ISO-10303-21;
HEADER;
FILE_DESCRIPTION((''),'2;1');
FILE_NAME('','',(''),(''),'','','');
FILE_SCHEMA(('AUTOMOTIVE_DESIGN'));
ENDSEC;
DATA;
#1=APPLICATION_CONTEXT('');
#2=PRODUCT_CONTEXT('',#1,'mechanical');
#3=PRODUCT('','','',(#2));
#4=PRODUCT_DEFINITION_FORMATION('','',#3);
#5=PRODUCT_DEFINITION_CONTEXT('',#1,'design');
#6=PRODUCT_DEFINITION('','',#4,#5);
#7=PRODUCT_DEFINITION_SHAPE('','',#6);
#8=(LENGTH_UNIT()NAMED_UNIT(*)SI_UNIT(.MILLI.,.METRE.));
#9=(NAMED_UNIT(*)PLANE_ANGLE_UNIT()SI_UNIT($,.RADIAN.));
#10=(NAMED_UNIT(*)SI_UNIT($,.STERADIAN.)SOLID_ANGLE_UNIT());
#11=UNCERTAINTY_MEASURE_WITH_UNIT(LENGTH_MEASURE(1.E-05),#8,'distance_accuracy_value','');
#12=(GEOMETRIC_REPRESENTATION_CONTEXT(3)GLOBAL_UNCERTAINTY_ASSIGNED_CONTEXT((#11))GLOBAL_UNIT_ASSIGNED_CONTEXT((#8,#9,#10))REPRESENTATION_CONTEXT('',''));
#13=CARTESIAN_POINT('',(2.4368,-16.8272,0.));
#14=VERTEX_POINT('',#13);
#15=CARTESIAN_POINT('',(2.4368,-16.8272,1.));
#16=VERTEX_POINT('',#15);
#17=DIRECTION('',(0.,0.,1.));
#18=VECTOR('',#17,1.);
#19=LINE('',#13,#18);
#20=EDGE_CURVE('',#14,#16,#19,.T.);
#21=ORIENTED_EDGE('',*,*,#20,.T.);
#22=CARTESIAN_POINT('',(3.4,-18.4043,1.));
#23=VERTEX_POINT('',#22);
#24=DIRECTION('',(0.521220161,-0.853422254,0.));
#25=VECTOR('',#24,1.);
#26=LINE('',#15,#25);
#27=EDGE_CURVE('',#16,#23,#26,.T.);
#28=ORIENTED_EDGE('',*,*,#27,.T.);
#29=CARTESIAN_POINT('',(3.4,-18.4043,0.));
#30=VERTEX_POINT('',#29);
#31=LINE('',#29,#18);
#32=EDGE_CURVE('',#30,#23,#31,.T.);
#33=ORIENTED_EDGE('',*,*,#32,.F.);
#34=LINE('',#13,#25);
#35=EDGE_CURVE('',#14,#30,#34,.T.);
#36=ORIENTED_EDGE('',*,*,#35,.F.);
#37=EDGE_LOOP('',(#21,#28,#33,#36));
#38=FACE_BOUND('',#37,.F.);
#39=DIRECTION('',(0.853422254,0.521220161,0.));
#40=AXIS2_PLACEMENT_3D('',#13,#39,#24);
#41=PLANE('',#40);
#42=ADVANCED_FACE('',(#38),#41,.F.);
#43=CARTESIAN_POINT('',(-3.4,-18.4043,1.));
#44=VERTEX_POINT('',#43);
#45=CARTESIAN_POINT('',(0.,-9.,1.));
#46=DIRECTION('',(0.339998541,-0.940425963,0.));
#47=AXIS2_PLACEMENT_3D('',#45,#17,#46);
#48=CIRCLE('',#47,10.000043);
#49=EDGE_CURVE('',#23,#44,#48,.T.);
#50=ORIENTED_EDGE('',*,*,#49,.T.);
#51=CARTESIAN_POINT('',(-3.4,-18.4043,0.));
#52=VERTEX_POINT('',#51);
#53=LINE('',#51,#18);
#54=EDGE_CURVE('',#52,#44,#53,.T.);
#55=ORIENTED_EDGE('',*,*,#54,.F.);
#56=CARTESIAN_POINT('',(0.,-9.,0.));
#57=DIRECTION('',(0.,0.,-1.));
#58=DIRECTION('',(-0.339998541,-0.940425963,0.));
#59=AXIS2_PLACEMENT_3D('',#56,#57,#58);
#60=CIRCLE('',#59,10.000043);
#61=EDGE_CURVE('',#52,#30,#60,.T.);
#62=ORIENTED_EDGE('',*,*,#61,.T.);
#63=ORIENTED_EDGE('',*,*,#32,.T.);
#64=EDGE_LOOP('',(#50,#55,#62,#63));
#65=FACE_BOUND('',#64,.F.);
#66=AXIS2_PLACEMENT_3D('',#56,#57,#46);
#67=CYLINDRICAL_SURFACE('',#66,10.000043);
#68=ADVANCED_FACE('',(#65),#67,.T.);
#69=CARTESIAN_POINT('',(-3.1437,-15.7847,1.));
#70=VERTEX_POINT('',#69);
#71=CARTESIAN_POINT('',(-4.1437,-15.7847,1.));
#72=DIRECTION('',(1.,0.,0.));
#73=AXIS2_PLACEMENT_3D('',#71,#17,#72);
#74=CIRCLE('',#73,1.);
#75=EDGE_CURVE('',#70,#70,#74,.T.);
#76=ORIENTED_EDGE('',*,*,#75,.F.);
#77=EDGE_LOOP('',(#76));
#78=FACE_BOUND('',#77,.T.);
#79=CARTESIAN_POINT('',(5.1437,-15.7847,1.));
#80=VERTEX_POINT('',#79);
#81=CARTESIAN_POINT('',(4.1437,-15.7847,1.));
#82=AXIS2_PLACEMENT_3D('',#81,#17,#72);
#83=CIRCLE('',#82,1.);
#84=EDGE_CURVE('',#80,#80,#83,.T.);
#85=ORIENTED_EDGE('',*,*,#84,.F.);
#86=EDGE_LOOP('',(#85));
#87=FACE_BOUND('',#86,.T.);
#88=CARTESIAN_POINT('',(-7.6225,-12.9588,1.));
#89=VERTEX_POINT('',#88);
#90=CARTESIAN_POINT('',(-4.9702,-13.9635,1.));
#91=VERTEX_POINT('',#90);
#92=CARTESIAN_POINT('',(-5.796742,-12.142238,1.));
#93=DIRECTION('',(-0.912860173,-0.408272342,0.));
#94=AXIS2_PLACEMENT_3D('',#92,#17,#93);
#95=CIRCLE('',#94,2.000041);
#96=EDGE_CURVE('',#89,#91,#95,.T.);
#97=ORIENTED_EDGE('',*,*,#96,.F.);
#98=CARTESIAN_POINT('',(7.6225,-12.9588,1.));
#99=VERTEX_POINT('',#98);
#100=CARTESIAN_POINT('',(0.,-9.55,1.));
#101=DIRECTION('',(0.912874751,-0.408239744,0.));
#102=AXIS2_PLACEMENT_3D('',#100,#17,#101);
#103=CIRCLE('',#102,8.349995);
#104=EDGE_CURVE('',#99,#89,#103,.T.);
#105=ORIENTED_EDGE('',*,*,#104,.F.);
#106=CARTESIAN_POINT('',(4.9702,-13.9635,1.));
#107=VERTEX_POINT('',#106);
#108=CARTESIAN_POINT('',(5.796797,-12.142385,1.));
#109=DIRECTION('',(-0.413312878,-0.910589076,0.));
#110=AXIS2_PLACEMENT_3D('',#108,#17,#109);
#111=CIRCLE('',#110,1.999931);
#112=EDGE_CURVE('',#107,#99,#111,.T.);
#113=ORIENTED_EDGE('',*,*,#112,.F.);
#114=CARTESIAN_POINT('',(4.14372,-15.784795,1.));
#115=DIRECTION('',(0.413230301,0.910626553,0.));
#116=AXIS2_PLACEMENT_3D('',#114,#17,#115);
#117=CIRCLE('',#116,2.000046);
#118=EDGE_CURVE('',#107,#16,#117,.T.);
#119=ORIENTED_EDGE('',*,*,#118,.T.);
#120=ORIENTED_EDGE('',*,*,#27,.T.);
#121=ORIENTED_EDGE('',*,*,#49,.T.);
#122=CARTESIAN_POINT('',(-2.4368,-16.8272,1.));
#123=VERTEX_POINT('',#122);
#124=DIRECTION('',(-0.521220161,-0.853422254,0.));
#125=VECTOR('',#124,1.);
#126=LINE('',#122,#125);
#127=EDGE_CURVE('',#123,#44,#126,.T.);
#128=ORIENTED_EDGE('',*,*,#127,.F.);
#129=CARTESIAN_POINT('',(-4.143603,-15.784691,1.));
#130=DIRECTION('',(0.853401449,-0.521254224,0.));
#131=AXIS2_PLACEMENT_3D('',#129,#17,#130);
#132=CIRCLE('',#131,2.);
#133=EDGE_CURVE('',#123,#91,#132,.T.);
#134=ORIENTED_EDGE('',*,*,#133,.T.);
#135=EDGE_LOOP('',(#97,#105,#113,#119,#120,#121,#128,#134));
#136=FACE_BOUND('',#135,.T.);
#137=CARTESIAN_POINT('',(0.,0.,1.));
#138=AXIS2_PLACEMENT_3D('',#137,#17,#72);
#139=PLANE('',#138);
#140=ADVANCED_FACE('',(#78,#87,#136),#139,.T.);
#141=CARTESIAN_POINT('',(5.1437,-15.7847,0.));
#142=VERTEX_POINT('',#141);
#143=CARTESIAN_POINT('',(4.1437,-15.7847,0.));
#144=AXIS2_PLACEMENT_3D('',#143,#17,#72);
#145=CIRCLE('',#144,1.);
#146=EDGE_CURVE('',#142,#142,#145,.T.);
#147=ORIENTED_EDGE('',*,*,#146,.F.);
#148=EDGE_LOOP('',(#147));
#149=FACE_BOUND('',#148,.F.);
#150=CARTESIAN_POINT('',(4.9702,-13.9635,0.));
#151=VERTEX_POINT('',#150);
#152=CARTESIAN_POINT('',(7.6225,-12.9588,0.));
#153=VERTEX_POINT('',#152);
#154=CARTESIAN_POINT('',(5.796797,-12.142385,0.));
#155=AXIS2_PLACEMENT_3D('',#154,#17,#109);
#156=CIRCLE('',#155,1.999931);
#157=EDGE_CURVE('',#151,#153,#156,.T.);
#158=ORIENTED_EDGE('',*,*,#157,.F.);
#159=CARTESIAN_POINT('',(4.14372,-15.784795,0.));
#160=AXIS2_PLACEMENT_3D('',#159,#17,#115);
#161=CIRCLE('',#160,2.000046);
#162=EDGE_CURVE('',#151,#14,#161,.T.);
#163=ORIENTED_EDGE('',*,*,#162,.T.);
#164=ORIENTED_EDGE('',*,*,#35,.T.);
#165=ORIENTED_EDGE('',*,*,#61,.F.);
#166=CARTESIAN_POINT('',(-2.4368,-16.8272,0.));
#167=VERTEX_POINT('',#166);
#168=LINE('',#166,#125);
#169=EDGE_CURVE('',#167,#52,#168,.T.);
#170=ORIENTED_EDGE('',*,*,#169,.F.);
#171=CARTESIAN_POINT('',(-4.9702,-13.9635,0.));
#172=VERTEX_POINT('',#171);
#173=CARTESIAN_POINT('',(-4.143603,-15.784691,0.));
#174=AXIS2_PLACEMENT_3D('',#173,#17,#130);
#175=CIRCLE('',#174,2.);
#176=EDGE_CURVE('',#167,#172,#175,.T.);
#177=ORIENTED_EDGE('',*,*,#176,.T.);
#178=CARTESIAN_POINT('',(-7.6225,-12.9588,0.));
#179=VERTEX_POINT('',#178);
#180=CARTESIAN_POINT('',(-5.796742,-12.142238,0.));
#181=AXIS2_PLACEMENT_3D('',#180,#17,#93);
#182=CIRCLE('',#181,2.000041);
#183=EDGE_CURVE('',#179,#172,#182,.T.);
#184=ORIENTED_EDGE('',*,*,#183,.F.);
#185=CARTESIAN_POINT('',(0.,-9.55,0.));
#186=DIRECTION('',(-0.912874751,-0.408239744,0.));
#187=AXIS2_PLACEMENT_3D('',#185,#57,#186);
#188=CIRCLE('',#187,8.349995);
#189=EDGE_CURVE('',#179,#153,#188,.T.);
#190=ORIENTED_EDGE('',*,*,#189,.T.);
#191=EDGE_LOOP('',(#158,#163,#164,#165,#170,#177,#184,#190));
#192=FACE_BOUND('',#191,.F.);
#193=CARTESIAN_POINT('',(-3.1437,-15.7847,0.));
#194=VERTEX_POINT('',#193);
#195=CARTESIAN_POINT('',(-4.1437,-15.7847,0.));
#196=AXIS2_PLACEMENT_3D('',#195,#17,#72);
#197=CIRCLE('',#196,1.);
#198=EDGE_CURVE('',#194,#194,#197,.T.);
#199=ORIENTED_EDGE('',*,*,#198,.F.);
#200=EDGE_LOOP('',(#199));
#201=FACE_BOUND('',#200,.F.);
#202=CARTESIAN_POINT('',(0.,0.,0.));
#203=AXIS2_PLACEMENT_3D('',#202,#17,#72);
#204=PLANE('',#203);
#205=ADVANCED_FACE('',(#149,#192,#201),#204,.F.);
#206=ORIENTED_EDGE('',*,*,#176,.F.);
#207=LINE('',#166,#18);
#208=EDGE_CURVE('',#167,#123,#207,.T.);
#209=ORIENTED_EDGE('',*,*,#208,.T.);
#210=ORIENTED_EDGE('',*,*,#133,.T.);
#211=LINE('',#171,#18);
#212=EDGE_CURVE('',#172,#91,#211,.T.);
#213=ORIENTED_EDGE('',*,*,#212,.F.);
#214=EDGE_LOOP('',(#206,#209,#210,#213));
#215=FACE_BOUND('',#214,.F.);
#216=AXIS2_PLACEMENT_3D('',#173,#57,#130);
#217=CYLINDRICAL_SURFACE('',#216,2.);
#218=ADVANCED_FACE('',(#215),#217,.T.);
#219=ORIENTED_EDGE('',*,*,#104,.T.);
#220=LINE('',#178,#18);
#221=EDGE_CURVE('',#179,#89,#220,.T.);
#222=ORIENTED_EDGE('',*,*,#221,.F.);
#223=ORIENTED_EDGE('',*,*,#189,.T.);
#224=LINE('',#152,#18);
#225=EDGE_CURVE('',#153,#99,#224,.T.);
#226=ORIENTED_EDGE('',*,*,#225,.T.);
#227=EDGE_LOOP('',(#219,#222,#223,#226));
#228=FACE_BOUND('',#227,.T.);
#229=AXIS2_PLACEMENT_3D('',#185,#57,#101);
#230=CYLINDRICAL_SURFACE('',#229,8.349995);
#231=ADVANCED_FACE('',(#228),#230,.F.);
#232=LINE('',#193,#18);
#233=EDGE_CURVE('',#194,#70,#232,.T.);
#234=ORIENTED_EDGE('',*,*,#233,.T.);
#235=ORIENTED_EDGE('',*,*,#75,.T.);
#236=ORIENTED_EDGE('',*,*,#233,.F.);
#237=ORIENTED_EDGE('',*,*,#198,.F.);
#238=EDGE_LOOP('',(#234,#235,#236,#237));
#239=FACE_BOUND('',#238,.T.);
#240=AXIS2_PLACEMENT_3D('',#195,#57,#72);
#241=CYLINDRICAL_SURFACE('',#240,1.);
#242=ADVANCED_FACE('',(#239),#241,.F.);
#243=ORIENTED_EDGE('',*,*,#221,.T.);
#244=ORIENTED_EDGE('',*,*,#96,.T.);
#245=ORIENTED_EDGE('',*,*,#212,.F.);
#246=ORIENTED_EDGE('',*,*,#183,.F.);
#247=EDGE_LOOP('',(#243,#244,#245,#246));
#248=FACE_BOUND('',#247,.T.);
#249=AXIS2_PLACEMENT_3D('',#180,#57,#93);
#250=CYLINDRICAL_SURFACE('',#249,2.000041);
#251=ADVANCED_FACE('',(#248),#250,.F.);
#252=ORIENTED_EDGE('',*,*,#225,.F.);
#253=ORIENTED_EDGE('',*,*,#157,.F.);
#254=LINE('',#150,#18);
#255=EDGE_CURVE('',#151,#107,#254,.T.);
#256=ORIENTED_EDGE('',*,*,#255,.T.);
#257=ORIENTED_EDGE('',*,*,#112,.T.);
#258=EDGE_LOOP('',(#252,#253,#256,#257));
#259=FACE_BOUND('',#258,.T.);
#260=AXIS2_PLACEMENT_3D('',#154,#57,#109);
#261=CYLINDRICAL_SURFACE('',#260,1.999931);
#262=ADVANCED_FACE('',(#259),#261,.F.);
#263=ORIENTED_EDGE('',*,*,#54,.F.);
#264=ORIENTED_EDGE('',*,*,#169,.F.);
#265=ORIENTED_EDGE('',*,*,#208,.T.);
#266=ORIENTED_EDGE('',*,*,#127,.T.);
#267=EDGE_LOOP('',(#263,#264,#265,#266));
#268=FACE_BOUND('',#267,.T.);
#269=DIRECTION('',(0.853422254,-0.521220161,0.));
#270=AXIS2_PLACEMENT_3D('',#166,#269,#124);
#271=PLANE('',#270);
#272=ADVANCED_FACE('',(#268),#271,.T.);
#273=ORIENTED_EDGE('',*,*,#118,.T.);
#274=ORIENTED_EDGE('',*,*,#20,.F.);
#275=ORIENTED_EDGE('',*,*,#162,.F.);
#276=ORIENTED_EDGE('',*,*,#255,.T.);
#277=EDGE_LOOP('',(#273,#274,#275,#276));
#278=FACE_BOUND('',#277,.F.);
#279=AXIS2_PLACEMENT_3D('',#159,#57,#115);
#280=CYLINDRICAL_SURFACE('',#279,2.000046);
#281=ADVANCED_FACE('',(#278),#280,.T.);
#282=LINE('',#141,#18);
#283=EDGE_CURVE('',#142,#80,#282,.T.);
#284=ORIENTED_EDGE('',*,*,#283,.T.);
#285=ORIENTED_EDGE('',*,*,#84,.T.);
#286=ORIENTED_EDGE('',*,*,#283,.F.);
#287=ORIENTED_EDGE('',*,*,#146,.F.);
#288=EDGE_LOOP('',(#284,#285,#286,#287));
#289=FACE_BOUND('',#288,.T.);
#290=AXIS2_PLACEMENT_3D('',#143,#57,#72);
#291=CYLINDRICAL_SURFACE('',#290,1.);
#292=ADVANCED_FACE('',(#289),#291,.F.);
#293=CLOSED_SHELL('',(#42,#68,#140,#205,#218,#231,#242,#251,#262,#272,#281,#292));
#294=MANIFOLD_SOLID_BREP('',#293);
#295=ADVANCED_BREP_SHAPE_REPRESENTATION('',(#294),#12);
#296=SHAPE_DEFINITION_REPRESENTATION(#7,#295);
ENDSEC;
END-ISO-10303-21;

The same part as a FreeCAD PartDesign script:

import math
import FreeCAD as App
import Part
import Sketcher

V = App.Vector
Q = App.Units.Quantity

doc = App.newDocument("Part")
body = doc.addObject("PartDesign::Body", "Body")

sketch1 = body.newObject("Sketcher::SketchObject", "Sketch")
sketch1.AttachmentSupport = (doc.getObject("XY_Plane"), [""])
sketch1.MapMode = "FlatFace"
sketch1.addGeometry([
    Part.ArcOfCircle(Part.Circle(V(5.8, -12.1, 0), V(0, 0, 1), 2), math.radians(-114), math.radians(-24)),
    Part.ArcOfCircle(Part.Circle(V(4.1, -15.8, 0), V(0, 0, 1), 2), math.radians(66), math.radians(211)),
    Part.LineSegment(V(2.4, -16.8, 0), V(3.4, -18.4, 0)),
    Part.ArcOfCircle(Part.Circle(V(0, -9, 0), V(0, 0, 1), 10), math.radians(-70), math.radians(250)),
    Part.LineSegment(V(-3.4, -18.4, 0), V(-2.4, -16.8, 0)),
    Part.ArcOfCircle(Part.Circle(V(-4.1, -15.8, 0), V(0, 0, 1), 2), math.radians(-31), math.radians(114)),
    Part.ArcOfCircle(Part.Circle(V(-5.8, -12.1, 0), V(0, 0, 1), 2), math.radians(-156), math.radians(-66)),
    Part.ArcOfCircle(Part.Circle(V(0, -9.6, 0), V(0, 0, 1), 8.3), math.radians(-24), math.radians(204)),
    Part.Circle(V(4.1, -15.8, 0), V(0, 0, 1), 1),
    Part.Circle(V(-4.1, -15.8, 0), V(0, 0, 1), 1),
], False)
sketch1.addConstraint([
    Sketcher.Constraint("Tangent", 0, 1, 1, 1),
    Sketcher.Constraint("Tangent", 1, 2, 2, 1),
    Sketcher.Constraint("Coincident", 2, 2, 3, 1),
    Sketcher.Constraint("Coincident", 3, 2, 4, 1),
    Sketcher.Constraint("Tangent", 4, 2, 5, 1),
    Sketcher.Constraint("Tangent", 5, 2, 6, 2),
    Sketcher.Constraint("Tangent", 6, 1, 7, 2),
    Sketcher.Constraint("Tangent", 7, 1, 0, 2),
    Sketcher.Constraint("Coincident", 8, 3, 1, 3),
    Sketcher.Constraint("Coincident", 9, 3, 5, 3),
    Sketcher.Constraint("Equal", 0, 1),
    Sketcher.Constraint("Equal", 1, 5),
    Sketcher.Constraint("Equal", 5, 6),
    Sketcher.Constraint("Equal", 8, 9),
    Sketcher.Constraint("Symmetric", 1, 3, 5, 3, -2),
    Sketcher.Constraint("Symmetric", 2, 2, 3, 2, -2),
    Sketcher.Constraint("PointOnObject", 7, 3, -2),
    Sketcher.Constraint("Diameter", 8, Q("2 mm")),
    Sketcher.Constraint("Radius", 0, Q("2 mm")),
    Sketcher.Constraint("Radius", 3, Q("10 mm")),
    Sketcher.Constraint("DistanceY", 3, 3, -1, 1, Q("9 mm")),
    Sketcher.Constraint("DistanceX", -1, 1, 2, 2, Q("3.4 mm")),
    Sketcher.Constraint("Radius", 7, Q("8.35 mm")),
    Sketcher.Constraint("DistanceY", 7, 3, 3, 3, Q("0.55 mm")),
    Sketcher.Constraint("DistanceX", 1, 2, 0, 3, Q("3.36 mm")),
    Sketcher.Constraint("Distance", 2, Q("1.848 mm")),
])
pad1 = body.newObject("PartDesign::Pad", "Pad")
pad1.Profile = sketch1
pad1.Length = 1

doc.recompute()
